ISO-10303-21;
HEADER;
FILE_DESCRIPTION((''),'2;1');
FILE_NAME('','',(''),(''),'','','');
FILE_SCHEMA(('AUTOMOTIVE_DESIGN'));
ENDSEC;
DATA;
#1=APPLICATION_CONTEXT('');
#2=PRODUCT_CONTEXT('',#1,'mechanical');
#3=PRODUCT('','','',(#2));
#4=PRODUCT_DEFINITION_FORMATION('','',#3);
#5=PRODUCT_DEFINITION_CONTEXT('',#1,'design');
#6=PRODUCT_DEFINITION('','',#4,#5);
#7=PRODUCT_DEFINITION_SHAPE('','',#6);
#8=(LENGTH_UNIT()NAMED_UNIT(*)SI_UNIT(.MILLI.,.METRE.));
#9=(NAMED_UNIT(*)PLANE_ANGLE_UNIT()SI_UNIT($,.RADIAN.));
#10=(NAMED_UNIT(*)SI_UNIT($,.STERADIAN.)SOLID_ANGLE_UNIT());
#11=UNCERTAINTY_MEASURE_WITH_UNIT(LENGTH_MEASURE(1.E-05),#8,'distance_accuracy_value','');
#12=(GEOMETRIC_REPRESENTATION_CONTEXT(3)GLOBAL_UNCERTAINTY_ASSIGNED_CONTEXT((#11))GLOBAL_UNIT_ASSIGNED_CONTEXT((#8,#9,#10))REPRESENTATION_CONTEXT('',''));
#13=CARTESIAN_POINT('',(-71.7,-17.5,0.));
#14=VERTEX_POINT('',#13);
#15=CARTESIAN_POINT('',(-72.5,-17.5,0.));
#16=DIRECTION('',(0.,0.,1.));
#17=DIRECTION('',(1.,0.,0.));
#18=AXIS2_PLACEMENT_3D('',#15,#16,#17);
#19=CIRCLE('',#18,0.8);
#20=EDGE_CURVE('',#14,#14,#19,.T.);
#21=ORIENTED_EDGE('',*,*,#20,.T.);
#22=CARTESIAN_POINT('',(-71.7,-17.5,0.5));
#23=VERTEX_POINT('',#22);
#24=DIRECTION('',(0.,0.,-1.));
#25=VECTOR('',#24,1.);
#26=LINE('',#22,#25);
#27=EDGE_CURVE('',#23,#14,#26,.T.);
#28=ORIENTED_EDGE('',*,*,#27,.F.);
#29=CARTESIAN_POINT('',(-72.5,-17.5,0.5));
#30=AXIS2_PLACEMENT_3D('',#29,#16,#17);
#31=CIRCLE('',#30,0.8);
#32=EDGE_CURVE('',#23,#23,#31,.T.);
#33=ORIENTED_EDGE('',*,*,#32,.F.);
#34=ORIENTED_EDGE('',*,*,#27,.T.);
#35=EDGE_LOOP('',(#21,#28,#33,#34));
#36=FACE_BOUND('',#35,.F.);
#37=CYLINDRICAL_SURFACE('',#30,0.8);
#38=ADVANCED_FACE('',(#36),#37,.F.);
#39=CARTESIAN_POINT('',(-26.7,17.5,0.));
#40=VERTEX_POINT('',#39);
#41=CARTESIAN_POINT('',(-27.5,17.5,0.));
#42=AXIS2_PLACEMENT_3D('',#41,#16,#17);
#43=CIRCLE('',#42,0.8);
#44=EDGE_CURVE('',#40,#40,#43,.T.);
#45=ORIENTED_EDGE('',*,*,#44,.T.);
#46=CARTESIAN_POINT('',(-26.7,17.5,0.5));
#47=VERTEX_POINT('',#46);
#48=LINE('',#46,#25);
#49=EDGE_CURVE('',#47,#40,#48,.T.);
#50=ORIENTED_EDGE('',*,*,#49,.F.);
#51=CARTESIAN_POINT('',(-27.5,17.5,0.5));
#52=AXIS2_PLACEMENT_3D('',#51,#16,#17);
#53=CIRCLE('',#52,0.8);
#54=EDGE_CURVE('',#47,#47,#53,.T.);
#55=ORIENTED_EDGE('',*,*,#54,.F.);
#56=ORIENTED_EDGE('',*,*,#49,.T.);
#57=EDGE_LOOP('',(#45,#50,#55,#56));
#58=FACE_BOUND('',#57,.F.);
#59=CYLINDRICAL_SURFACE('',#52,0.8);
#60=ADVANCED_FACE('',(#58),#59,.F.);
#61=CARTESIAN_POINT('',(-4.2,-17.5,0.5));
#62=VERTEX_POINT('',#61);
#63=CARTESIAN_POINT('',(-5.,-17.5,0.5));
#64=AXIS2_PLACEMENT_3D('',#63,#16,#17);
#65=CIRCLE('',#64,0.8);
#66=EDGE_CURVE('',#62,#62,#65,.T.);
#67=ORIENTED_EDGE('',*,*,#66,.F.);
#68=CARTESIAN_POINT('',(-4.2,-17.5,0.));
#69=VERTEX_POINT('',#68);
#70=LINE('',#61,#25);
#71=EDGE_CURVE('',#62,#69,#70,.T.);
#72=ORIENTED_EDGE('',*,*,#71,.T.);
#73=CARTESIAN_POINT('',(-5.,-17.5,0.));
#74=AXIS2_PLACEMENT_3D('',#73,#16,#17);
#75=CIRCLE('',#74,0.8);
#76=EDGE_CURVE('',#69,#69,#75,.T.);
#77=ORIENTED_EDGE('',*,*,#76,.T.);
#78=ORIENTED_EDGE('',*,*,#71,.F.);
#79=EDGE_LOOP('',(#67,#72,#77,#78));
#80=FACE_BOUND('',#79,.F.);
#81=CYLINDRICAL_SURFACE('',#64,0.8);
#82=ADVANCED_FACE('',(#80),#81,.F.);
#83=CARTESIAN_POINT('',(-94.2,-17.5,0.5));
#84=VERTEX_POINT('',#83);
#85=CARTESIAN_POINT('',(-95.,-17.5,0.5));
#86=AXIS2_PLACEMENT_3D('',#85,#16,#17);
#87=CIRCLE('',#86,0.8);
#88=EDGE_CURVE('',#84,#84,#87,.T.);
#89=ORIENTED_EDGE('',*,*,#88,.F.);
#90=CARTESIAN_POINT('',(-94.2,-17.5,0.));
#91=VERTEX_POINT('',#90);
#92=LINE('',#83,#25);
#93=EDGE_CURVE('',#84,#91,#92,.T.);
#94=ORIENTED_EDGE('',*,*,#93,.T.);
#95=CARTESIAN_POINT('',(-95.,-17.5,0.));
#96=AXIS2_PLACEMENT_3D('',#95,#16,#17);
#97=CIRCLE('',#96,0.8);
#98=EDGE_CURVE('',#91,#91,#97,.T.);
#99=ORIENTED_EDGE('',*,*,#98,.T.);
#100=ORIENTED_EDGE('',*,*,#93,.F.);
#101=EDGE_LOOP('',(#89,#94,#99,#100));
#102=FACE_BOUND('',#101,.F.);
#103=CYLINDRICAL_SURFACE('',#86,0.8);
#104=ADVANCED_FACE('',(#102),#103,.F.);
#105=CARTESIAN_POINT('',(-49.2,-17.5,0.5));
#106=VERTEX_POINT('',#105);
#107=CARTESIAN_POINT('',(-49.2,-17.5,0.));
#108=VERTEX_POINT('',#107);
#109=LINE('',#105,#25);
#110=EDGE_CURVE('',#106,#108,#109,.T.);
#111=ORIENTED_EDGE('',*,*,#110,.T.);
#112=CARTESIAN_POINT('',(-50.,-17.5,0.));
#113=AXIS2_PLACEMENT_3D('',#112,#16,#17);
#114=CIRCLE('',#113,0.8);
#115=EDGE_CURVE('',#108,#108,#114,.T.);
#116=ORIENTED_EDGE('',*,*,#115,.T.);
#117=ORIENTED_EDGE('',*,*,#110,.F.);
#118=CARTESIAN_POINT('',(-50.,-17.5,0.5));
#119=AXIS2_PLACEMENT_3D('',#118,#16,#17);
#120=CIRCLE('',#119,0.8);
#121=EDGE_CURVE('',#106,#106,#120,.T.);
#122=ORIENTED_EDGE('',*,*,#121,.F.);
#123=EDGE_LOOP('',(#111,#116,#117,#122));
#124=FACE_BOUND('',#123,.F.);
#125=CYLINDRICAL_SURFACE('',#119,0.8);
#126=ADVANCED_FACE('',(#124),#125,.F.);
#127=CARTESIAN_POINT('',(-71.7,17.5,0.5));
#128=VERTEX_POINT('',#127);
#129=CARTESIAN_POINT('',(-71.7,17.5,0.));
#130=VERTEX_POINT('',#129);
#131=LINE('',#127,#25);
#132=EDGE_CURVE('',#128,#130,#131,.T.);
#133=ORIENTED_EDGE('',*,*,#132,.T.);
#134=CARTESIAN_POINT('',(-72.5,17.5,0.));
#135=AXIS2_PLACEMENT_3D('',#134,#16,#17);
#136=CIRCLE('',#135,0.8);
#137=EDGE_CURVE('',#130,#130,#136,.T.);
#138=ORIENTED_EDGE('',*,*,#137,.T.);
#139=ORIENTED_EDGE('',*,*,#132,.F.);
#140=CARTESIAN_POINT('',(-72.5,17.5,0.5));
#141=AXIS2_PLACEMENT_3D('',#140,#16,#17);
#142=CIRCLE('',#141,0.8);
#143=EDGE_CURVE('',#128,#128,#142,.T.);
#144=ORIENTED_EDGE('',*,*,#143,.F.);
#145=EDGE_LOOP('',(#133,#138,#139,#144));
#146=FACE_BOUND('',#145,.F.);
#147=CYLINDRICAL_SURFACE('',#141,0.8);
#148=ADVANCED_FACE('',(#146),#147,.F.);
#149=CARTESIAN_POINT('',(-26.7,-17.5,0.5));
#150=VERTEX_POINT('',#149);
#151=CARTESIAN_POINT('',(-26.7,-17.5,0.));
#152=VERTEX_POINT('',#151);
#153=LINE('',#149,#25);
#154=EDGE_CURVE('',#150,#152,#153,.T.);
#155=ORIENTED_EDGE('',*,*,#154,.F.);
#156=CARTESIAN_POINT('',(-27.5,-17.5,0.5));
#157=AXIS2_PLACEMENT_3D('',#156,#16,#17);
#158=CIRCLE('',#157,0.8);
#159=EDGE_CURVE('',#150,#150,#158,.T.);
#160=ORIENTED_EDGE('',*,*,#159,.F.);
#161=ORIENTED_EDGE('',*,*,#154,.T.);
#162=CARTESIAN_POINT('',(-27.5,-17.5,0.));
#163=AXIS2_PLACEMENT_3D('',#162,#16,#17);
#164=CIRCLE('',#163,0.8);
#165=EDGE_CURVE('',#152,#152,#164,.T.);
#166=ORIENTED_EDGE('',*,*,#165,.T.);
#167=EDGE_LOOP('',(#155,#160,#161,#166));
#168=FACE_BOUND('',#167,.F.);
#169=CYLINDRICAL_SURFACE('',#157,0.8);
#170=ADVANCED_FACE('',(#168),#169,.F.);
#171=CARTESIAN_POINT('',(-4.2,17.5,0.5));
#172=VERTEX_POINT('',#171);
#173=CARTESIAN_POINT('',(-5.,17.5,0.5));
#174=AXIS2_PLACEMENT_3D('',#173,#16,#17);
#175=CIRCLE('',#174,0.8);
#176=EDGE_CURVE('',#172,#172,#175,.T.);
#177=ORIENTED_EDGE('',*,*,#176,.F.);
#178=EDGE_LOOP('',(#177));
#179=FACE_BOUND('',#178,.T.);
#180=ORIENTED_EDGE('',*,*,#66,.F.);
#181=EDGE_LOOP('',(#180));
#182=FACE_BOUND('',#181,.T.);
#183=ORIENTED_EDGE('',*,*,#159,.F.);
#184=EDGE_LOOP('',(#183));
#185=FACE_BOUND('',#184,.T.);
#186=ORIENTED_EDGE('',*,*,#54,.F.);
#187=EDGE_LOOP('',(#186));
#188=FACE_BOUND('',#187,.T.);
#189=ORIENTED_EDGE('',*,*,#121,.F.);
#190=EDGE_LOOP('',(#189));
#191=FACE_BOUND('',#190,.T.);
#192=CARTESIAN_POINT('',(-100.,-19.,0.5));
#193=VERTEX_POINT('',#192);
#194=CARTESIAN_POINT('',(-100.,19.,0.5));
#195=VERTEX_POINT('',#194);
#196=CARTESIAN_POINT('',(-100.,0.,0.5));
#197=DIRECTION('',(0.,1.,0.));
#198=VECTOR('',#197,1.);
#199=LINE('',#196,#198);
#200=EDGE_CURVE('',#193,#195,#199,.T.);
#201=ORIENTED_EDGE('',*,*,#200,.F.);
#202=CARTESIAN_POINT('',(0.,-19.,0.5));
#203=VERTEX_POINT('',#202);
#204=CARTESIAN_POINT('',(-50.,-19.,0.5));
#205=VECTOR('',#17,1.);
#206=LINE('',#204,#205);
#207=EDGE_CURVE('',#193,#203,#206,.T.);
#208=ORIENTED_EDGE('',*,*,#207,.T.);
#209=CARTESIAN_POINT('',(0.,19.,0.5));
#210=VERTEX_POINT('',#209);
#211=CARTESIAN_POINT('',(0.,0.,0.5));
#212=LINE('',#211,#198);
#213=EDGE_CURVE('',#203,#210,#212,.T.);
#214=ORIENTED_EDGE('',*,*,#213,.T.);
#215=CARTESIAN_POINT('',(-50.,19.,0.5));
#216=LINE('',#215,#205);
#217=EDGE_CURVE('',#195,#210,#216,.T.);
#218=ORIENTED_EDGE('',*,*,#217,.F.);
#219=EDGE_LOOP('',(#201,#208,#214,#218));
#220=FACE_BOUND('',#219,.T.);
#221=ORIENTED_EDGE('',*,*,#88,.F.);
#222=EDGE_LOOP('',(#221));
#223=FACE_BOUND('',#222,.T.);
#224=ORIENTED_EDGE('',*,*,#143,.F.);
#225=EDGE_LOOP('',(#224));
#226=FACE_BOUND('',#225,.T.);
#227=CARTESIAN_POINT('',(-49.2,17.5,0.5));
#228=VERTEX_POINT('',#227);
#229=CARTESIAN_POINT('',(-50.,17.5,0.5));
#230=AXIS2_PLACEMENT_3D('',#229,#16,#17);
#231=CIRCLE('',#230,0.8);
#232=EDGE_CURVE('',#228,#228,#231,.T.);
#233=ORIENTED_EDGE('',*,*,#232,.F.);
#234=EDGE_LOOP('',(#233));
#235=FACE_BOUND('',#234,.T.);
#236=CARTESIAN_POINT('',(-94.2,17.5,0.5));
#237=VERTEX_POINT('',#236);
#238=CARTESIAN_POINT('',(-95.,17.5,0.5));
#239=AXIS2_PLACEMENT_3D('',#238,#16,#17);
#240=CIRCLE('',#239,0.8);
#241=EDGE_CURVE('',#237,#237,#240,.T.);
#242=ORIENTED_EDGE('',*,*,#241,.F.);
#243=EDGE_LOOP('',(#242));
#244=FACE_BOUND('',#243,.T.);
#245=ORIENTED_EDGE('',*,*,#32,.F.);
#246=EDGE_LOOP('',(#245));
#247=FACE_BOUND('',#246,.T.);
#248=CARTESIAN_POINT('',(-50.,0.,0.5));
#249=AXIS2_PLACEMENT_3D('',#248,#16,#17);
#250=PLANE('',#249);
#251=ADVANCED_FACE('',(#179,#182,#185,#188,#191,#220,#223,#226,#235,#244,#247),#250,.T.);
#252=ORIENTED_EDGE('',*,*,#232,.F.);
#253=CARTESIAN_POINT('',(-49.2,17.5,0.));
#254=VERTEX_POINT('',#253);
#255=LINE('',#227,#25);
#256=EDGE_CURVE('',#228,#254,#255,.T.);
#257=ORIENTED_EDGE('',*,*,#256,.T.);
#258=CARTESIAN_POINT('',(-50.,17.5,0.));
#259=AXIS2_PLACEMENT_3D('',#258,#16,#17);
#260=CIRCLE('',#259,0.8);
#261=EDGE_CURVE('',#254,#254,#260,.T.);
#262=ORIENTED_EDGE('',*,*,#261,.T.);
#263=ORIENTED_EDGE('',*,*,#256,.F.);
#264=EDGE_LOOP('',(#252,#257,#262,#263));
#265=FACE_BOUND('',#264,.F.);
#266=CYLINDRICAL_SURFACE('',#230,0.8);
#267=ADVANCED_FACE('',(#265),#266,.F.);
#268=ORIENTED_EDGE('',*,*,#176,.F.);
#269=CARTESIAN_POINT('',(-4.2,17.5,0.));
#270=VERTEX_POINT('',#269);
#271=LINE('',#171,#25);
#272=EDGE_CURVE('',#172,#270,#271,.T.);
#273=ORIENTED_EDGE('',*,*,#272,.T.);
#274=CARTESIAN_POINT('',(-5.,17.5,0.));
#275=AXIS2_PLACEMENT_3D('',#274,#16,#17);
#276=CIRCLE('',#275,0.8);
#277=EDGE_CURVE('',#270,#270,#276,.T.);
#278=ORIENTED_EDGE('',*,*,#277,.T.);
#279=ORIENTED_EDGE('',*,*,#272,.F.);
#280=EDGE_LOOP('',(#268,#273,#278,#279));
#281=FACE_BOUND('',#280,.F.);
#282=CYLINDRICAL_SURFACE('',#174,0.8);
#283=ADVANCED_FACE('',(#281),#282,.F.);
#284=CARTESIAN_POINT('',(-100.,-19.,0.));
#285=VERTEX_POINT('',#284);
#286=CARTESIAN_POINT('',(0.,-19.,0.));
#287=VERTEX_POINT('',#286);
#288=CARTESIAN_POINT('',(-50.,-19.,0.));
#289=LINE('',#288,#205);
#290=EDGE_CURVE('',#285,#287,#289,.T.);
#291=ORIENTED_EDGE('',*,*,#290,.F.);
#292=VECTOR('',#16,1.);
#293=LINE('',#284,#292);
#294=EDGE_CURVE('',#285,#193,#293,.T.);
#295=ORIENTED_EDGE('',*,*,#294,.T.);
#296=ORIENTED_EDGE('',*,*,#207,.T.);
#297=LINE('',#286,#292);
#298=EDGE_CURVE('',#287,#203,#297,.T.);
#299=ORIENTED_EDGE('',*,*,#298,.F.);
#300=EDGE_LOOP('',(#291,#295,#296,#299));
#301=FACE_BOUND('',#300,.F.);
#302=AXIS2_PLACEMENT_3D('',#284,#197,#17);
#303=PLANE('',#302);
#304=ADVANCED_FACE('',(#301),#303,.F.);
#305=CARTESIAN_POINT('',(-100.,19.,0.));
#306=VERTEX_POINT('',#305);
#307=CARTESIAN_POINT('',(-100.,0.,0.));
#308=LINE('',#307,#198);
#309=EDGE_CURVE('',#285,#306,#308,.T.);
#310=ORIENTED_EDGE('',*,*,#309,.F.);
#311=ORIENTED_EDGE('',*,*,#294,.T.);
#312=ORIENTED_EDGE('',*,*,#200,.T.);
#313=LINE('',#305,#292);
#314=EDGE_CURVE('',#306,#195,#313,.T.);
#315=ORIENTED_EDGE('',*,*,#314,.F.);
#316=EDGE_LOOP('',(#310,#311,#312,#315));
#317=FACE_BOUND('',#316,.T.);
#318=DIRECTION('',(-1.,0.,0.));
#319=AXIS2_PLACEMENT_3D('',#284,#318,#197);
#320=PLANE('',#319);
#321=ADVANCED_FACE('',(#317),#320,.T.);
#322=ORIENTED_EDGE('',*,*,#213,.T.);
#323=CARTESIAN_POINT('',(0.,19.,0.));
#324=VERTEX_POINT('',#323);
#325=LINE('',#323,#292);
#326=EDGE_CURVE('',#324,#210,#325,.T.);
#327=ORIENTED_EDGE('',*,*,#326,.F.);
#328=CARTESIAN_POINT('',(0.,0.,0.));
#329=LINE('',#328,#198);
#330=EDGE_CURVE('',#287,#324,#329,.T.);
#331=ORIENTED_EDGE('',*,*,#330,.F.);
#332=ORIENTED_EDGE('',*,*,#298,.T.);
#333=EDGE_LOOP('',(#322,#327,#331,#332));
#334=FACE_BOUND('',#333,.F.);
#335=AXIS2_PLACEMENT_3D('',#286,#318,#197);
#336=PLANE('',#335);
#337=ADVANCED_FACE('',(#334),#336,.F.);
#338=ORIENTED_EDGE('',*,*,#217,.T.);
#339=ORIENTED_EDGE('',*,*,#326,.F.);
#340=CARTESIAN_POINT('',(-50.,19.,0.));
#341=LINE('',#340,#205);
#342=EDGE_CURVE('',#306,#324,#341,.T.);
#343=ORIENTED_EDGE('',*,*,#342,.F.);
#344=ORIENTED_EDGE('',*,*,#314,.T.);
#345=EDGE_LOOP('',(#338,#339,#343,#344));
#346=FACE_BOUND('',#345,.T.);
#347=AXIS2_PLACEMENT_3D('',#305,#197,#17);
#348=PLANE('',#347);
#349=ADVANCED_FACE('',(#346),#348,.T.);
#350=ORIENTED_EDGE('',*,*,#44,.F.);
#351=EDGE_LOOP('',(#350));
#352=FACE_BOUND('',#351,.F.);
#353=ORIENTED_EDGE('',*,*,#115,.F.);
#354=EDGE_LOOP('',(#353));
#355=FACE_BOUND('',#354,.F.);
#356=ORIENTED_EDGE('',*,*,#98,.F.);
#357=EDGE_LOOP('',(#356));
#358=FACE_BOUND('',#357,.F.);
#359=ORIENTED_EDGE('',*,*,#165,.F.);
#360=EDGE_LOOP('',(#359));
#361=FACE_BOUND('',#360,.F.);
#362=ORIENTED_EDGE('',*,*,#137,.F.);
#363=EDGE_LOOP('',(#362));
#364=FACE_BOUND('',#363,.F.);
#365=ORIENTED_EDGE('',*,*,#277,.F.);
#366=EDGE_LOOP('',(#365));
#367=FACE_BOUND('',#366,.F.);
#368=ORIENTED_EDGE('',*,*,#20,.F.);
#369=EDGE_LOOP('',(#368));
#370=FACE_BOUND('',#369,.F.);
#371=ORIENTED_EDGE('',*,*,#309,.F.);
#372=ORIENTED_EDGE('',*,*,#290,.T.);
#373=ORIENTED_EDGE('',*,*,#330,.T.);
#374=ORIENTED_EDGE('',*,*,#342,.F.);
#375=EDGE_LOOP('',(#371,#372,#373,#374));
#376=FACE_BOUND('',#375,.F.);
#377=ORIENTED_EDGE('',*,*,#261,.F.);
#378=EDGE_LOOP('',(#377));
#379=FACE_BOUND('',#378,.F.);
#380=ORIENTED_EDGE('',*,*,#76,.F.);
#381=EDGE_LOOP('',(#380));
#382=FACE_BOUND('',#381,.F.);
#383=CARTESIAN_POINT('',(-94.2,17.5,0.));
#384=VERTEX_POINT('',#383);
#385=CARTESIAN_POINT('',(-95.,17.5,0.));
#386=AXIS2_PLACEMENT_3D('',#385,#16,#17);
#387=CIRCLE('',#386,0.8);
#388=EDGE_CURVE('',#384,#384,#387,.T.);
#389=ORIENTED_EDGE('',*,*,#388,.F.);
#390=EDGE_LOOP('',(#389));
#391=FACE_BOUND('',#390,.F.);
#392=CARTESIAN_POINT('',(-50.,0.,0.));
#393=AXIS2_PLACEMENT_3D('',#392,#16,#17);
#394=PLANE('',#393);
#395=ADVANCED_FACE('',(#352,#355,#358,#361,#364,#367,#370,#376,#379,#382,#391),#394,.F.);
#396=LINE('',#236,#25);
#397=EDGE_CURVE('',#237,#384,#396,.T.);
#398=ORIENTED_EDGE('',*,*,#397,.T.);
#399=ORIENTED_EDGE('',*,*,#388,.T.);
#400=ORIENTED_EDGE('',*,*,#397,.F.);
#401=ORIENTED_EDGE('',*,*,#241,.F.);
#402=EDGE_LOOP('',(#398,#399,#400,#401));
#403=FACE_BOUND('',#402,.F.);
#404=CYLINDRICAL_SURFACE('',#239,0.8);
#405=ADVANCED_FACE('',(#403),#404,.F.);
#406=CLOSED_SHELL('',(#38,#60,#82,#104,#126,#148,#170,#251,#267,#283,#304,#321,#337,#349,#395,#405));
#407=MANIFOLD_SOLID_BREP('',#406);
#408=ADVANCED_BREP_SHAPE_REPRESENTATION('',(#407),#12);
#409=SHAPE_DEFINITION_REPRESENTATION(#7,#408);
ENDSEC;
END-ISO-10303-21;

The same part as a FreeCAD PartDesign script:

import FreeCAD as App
import Part
import Sketcher

doc = App.newDocument("Part")
params = doc.addObject("Spreadsheet::Sheet", "Params")
for row, (alias, value) in enumerate([
    ("sketch1_width", "100 mm"),
    ("sketch1_height", "38 mm"),
    ("pad1_length", "0.5 mm"),
    ("sketch2_diameter", "1.6 mm"),
], start=1):
    params.set(f"A{row}", alias)
    params.set(f"B{row}", "=" + value)
    params.setAlias(f"B{row}", alias)

body = doc.addObject("PartDesign::Body", "Body")

# Sketch on XY plane
sketch1 = body.newObject("Sketcher::SketchObject", "Sketch")
sketch1.AttachmentSupport = (doc.getObject("XY_Plane"), [""])
sketch1.MapMode = "FlatFace"
sketch1.addGeometry([
    Part.LineSegment(App.Vector(-100, 19, 0), App.Vector(-100, -19, 0)),
    Part.LineSegment(App.Vector(-100, -19, 0), App.Vector(0, -19, 0)),
    Part.LineSegment(App.Vector(0, -19, 0), App.Vector(0, 19, 0)),
    Part.LineSegment(App.Vector(0, 19, 0), App.Vector(-100, 19, 0)),
], False)
sketch1.addConstraint([
    Sketcher.Constraint("Coincident", 0, 2, 1, 1),
    Sketcher.Constraint("Coincident", 1, 2, 2, 1),
    Sketcher.Constraint("Coincident", 2, 2, 3, 1),
    Sketcher.Constraint("Coincident", 3, 2, 0, 1),
    Sketcher.Constraint("Vertical", 0),
    Sketcher.Constraint("Horizontal", 1),
    Sketcher.Constraint("Vertical", 2),
    Sketcher.Constraint("Horizontal", 3),
    Sketcher.Constraint("Symmetric", 1, 2, 2, 2, -1, 1),
    Sketcher.Constraint("DistanceX", 1, 1, 1, 2, 100.0),
    Sketcher.Constraint("DistanceY", 0, 2, 0, 1, 38.0),
])
sketch1.setExpression("Constraints[9]", "Params.sketch1_width")
sketch1.setExpression("Constraints[10]", "Params.sketch1_height")
pad1 = body.newObject("PartDesign::Pad", "Pad")
pad1.Profile = sketch1
pad1.setExpression("Length", "Params.pad1_length")

# Sketch on XY plane
sketch2 = body.newObject("Sketcher::SketchObject", "Sketch001")
sketch2.AttachmentSupport = (doc.getObject("XY_Plane"), [""])
sketch2.MapMode = "FlatFace"
sketch2.AttachmentOffset = App.Placement(App.Vector(0, 0, 0.5), App.Rotation())
sketch2.addGeometry([
    Part.Circle(App.Vector(-95, -17.5, 0), App.Vector(0, 0, 1), 0.8),  # 0
    Part.Circle(App.Vector(-72.5, -17.5, 0), App.Vector(0, 0, 1), 0.8),  # 1
    Part.Circle(App.Vector(-50, -17.5, 0), App.Vector(0, 0, 1), 0.8),  # 2
    Part.Circle(App.Vector(-27.5, -17.5, 0), App.Vector(0, 0, 1), 0.8),  # 3
    Part.Circle(App.Vector(-5, -17.5, 0), App.Vector(0, 0, 1), 0.8),  # 4
    Part.Circle(App.Vector(-5, 17.5, 0), App.Vector(0, 0, 1), 0.8),  # 5
    Part.Circle(App.Vector(-27.5, 17.5, 0), App.Vector(0, 0, 1), 0.8),  # 6
    Part.Circle(App.Vector(-50, 17.5, 0), App.Vector(0, 0, 1), 0.8),  # 7
    Part.Circle(App.Vector(-72.5, 17.5, 0), App.Vector(0, 0, 1), 0.8),  # 8
    Part.Circle(App.Vector(-95, 17.5, 0), App.Vector(0, 0, 1), 0.8),  # 9
], False)
sketch2.addConstraint([
    Sketcher.Constraint("Equal", 0, 1),
    Sketcher.Constraint("Equal", 1, 2),
    Sketcher.Constraint("Equal", 2, 3),
    Sketcher.Constraint("Equal", 3, 4),
    Sketcher.Constraint("Equal", 4, 5),
    Sketcher.Constraint("Equal", 5, 6),
    Sketcher.Constraint("Equal", 6, 7),
    Sketcher.Constraint("Equal", 7, 8),
    Sketcher.Constraint("Equal", 8, 9),
    Sketcher.Constraint("Symmetric", 4, 3, 5, 3, -1),
    Sketcher.Constraint("Symmetric", 3, 3, 6, 3, -1),
    Sketcher.Constraint("Symmetric", 2, 3, 7, 3, -1),
    Sketcher.Constraint("Symmetric", 1, 3, 8, 3, -1),
    Sketcher.Constraint("Symmetric", 0, 3, 9, 3, -1),
    Sketcher.Constraint("Horizontal", 0, 3, 1, 3),
    Sketcher.Constraint("Horizontal", 1, 3, 2, 3),
    Sketcher.Constraint("Horizontal", 2, 3, 3, 3),
    Sketcher.Constraint("Horizontal", 3, 3, 4, 3),
    Sketcher.Constraint("Diameter", 0, 1.6),
    Sketcher.Constraint("DistanceX", 0, 3, -1, 1, 95.0),
    Sketcher.Constraint("DistanceX", 2, 3, -1, 1, 50.0),
    Sketcher.Constraint("DistanceX", 4, 3, -1, 1, 5.0),
    Sketcher.Constraint("DistanceX", 1, 3, 3, 3, 45.0),
    Sketcher.Constraint("DistanceY", 4, 3, 5, 3, 35.0),
    Sketcher.Constraint("DistanceX", 1, 3, -1, 1, 72.5),
])
sketch2.setExpression("Constraints[18]", "Params.sketch2_diameter")
pocket1 = body.newObject("PartDesign::Pocket", "Pocket")
pocket1.Profile = sketch2
pocket1.Type = "ThroughAll"

doc.recompute()
